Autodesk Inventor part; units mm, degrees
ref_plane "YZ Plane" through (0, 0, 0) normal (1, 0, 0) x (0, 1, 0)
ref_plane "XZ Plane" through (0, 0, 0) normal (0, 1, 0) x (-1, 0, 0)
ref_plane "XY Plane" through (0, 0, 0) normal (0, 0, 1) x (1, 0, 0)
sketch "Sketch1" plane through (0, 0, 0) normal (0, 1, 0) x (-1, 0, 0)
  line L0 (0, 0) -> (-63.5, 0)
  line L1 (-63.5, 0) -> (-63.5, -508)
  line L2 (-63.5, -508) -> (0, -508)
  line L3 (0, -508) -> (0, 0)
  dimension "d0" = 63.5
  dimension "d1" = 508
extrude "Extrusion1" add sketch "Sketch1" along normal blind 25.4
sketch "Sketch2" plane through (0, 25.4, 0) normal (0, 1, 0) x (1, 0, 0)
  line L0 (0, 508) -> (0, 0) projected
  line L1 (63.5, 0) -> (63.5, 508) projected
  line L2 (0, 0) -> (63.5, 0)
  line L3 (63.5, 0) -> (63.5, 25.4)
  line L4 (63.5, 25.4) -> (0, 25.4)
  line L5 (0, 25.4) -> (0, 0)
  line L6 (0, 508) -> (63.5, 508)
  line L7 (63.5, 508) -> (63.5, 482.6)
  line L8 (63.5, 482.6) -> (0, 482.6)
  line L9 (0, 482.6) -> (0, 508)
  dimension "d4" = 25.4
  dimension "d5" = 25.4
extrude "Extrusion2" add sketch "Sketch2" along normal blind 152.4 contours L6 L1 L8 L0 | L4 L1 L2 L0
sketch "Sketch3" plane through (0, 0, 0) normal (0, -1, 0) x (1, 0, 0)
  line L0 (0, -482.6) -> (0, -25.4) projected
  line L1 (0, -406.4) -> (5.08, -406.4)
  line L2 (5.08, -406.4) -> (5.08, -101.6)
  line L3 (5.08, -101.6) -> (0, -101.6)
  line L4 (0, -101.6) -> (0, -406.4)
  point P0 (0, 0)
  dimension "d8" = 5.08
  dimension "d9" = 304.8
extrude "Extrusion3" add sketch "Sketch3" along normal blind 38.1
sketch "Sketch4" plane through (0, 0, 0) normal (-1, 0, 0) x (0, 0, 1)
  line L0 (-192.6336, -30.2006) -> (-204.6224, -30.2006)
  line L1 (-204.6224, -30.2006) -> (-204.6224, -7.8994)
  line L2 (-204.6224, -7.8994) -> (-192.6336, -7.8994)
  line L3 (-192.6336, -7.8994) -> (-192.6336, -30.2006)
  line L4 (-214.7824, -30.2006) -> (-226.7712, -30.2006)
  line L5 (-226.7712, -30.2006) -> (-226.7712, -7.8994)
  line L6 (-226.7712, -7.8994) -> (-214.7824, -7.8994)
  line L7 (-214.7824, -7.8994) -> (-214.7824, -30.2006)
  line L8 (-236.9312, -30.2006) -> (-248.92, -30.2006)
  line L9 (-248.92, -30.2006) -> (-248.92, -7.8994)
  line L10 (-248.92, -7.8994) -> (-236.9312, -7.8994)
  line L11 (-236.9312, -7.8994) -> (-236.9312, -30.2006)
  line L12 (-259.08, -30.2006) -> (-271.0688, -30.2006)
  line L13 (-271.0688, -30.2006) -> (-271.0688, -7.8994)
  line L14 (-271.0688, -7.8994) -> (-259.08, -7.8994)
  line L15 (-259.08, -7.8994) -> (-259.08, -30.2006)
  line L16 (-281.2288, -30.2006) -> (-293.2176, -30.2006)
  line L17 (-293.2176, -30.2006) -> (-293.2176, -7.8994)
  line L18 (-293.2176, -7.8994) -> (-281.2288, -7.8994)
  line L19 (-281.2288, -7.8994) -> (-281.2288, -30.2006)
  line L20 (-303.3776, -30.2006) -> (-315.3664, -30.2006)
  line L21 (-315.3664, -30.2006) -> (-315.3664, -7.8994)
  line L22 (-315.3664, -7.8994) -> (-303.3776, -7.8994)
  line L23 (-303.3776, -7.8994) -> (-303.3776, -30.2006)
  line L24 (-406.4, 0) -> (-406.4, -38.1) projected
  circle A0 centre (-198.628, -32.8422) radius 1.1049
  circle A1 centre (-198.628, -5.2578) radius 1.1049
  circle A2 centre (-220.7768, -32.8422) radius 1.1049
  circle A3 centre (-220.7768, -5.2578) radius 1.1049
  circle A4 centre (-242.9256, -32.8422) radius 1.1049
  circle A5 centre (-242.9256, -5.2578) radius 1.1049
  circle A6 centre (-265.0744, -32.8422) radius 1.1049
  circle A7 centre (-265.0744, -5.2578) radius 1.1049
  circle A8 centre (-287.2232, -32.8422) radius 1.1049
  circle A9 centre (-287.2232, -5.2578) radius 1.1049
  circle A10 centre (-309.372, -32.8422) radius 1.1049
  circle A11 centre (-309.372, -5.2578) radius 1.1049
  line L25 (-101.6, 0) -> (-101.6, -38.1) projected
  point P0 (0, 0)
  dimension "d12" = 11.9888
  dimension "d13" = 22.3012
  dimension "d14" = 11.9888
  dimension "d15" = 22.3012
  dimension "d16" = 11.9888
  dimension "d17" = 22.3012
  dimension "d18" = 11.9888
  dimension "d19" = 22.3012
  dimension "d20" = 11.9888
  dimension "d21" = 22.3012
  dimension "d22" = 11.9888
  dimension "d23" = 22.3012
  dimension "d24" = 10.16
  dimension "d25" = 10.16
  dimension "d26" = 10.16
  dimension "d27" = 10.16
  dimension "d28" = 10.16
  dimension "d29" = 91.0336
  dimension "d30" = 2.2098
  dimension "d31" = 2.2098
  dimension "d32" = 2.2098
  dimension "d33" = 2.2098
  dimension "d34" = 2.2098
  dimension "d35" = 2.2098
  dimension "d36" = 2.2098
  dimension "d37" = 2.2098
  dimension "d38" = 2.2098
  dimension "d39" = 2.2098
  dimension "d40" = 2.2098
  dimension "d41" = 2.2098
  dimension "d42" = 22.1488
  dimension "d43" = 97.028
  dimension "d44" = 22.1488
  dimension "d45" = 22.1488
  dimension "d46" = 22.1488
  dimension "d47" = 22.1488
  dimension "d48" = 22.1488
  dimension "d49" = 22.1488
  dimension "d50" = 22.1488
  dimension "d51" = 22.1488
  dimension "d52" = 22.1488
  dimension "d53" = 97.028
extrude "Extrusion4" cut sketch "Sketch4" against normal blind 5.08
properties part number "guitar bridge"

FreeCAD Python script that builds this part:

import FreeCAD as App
import Part
import Sketcher
Q = App.Units.Quantity


def add_polygon(sketch, points):
    """Adds a closed chain of lines whose ends are joined by coincident constraints."""
    first, n = sketch.GeometryCount, len(points)
    for a, b in zip(points, points[1:] + points[:1]):
        sketch.addGeometry(Part.LineSegment(App.Vector(*a, 0), App.Vector(*b, 0)), False)
    for i in range(n):
        sketch.addConstraint(Sketcher.Constraint("Coincident", first + i, 2, first + (i + 1) % n, 1))

doc = App.newDocument("Part")
params = doc.addObject("Spreadsheet::Sheet", "Params")
for row, (alias, value) in enumerate([
    ("sketch1_height", "20 in"),
    ("sketch1_width", "2.5 in"),
    ("pad1_length", "1 in"),
    ("sketch2_height", "1 in"),
    ("sketch2_width", "2.5 in"),
    ("pad2_length", "6 in"),
    ("sketch3_height", "12 in"),
    ("sketch3_width", "0.2 in"),
    ("pad3_length", "1.5 in"),
    ("sketch4_diameter", "0.087 in"),
    ("sketch4_width", "0.878 in"),
    ("sketch4_height", "0.472 in"),
    ("pocket1_length", "0.2 in"),
], start=1):
    params.set(f"A{row}", alias)
    params.set(f"B{row}", "=" + value)
    params.setAlias(f"B{row}", alias)

body = doc.addObject("PartDesign::Body", "Body")

sketch1 = body.newObject("Sketcher::SketchObject", "Sketch")
sketch1.AttachmentSupport = (doc.getObject("XZ_Plane"), [""])
sketch1.MapMode = "FlatFace"
add_polygon(sketch1, [(0, -508), (0, 0), (63.5, 0), (63.5, -508)])
sketch1.addConstraint(Sketcher.Constraint("Vertical", 0))
sketch1.addConstraint(Sketcher.Constraint("Horizontal", 1))
sketch1.addConstraint(Sketcher.Constraint("Vertical", 2))
sketch1.addConstraint(Sketcher.Constraint("Horizontal", 3))
sketch1.addConstraint(Sketcher.Constraint("Coincident", 0, 2, -1, 1))
sketch1.addConstraint(Sketcher.Constraint("DistanceY", 0, 1, 0, 2, Q("20 in")))
sketch1.addConstraint(Sketcher.Constraint("DistanceX", 1, 1, 1, 2, Q("2.5 in")))
sketch1.setExpression("Constraints[9]", "Params.sketch1_height")
sketch1.setExpression("Constraints[10]", "Params.sketch1_width")
pad1 = body.newObject("PartDesign::Pad", "Pad")
pad1.Profile = sketch1
pad1.setExpression("Length", "Params.pad1_length")
pad1.Reversed = True

sketch2 = body.newObject("Sketcher::SketchObject", "Sketch001")
sketch2.AttachmentSupport = (doc.getObject("XZ_Plane"), [""])
sketch2.MapMode = "FlatFace"
sketch2.AttachmentOffset = App.Placement(App.Vector(0, 0, -1 * 25.4), App.Rotation())
add_polygon(sketch2, [(63.5, -508), (0, -508), (0, -482.6), (63.5, -482.6)])
add_polygon(sketch2, [(63.5, -25.4), (0, -25.4), (0, 0), (63.5, 0)])
sketch2.addConstraint(Sketcher.Constraint("Horizontal", 0))
sketch2.addConstraint(Sketcher.Constraint("Vertical", 1))
sketch2.addConstraint(Sketcher.Constraint("Horizontal", 2))
sketch2.addConstraint(Sketcher.Constraint("Vertical", 3))
sketch2.addConstraint(Sketcher.Constraint("Horizontal", 4))
sketch2.addConstraint(Sketcher.Constraint("Vertical", 5))
sketch2.addConstraint(Sketcher.Constraint("Horizontal", 6))
sketch2.addConstraint(Sketcher.Constraint("Vertical", 7))
sketch2.addConstraint(Sketcher.Constraint("Coincident", 5, 2, -1, 1))
sketch2.addConstraint(Sketcher.Constraint("PointOnObject", 0, 2, -2))
sketch2.addConstraint(Sketcher.Constraint("Vertical", 3, 2, 6, 2))
sketch2.addConstraint(Sketcher.Constraint("Equal", 3, 5))
sketch2.addConstraint(Sketcher.Constraint("DistanceY", 1, 1, 1, 2, Q("1 in")))
sketch2.addConstraint(Sketcher.Constraint("DistanceX", 0, 2, 0, 1, Q("2.5 in")))
sketch2.addConstraint(Sketcher.Constraint("DistanceY", 0, 2, -1, 1, Q("20 in")))
sketch2.setExpression("Constraints[20]", "Params.sketch2_height")
sketch2.setExpression("Constraints[21]", "Params.sketch2_width")
pad2 = body.newObject("PartDesign::Pad", "Pad001")
pad2.Profile = sketch2
pad2.setExpression("Length", "Params.pad2_length")
pad2.Reversed = True

sketch3 = body.newObject("Sketcher::SketchObject", "Sketch002")
sketch3.AttachmentSupport = (doc.getObject("XZ_Plane"), [""])
sketch3.MapMode = "FlatFace"
add_polygon(sketch3, [(0, -101.6), (0, -406.4), (5.08, -406.4), (5.08, -101.6)])
sketch3.addConstraint(Sketcher.Constraint("Vertical", 0))
sketch3.addConstraint(Sketcher.Constraint("Horizontal", 1))
sketch3.addConstraint(Sketcher.Constraint("Vertical", 2))
sketch3.addConstraint(Sketcher.Constraint("Horizontal", 3))
sketch3.addConstraint(Sketcher.Constraint("PointOnObject", 0, 2, -2))
sketch3.addConstraint(Sketcher.Constraint("DistanceY", 0, 2, 0, 1, Q("12 in")))
sketch3.addConstraint(Sketcher.Constraint("DistanceX", 1, 1, 1, 2, Q("0.2 in")))
sketch3.addConstraint(Sketcher.Constraint("DistanceY", 0, 2, -1, 1, Q("16 in")))
sketch3.setExpression("Constraints[9]", "Params.sketch3_height")
sketch3.setExpression("Constraints[10]", "Params.sketch3_width")
pad3 = body.newObject("PartDesign::Pad", "Pad002")
pad3.Profile = sketch3
pad3.setExpression("Length", "Params.pad3_length")

sketch4 = body.newObject("Sketcher::SketchObject", "Sketch003")
sketch4.AttachmentSupport = (doc.getObject("YZ_Plane"), [""])
sketch4.MapMode = "FlatFace"
add_polygon(sketch4, [(-30.2006, -204.6224), (-30.2006, -192.6336), (-7.8994, -192.6336), (-7.8994, -204.6224)])
add_polygon(sketch4, [(-30.2006, -226.7712), (-30.2006, -214.7824), (-7.8994, -214.7824), (-7.8994, -226.7712)])
add_polygon(sketch4, [(-30.2006, -248.92), (-30.2006, -236.9312), (-7.8994, -236.9312), (-7.8994, -248.92)])
add_polygon(sketch4, [(-30.2006, -271.0688), (-30.2006, -259.08), (-7.8994, -259.08), (-7.8994, -271.0688)])
add_polygon(sketch4, [(-30.2006, -293.2176), (-30.2006, -281.2288), (-7.8994, -281.2288), (-7.8994, -293.2176)])
add_polygon(sketch4, [(-30.2006, -315.3664), (-30.2006, -303.3776), (-7.8994, -303.3776), (-7.8994, -315.3664)])
sketch4.addGeometry(Part.Circle(App.Vector(-32.8422, -198.628, 0), App.Vector(0, 0, 1), 1.1049), False)
sketch4.addGeometry(Part.Circle(App.Vector(-5.2578, -198.628, 0), App.Vector(0, 0, 1), 1.1049), False)
sketch4.addGeometry(Part.Circle(App.Vector(-32.8422, -220.7768, 0), App.Vector(0, 0, 1), 1.1049), False)
sketch4.addGeometry(Part.Circle(App.Vector(-5.2578, -220.7768, 0), App.Vector(0, 0, 1), 1.1049), False)
sketch4.addGeometry(Part.Circle(App.Vector(-32.8422, -242.9256, 0), App.Vector(0, 0, 1), 1.1049), False)
sketch4.addGeometry(Part.Circle(App.Vector(-5.2578, -242.9256, 0), App.Vector(0, 0, 1), 1.1049), False)
sketch4.addGeometry(Part.Circle(App.Vector(-32.8422, -265.0744, 0), App.Vector(0, 0, 1), 1.1049), False)
sketch4.addGeometry(Part.Circle(App.Vector(-5.2578, -265.0744, 0), App.Vector(0, 0, 1), 1.1049), False)
sketch4.addGeometry(Part.Circle(App.Vector(-32.8422, -287.2232, 0), App.Vector(0, 0, 1), 1.1049), False)
sketch4.addGeometry(Part.Circle(App.Vector(-5.2578, -287.2232, 0), App.Vector(0, 0, 1), 1.1049), False)
sketch4.addGeometry(Part.Circle(App.Vector(-32.8422, -309.372, 0), App.Vector(0, 0, 1), 1.1049), False)
sketch4.addGeometry(Part.Circle(App.Vector(-5.2578, -309.372, 0), App.Vector(0, 0, 1), 1.1049), False)
sketch4.addConstraint(Sketcher.Constraint("Vertical", 0))
sketch4.addConstraint(Sketcher.Constraint("Horizontal", 1))
sketch4.addConstraint(Sketcher.Constraint("Vertical", 2))
sketch4.addConstraint(Sketcher.Constraint("Horizontal", 3))
sketch4.addConstraint(Sketcher.Constraint("Vertical", 4))
sketch4.addConstraint(Sketcher.Constraint("Horizontal", 5))
sketch4.addConstraint(Sketcher.Constraint("Vertical", 6))
sketch4.addConstraint(Sketcher.Constraint("Horizontal", 7))
sketch4.addConstraint(Sketcher.Constraint("Vertical", 8))
sketch4.addConstraint(Sketcher.Constraint("Horizontal", 9))
sketch4.addConstraint(Sketcher.Constraint("Vertical", 10))
sketch4.addConstraint(Sketcher.Constraint("Horizontal", 11))
sketch4.addConstraint(Sketcher.Constraint("Vertical", 12))
sketch4.addConstraint(Sketcher.Constraint("Horizontal", 13))
sketch4.addConstraint(Sketcher.Constraint("Vertical", 14))
sketch4.addConstraint(Sketcher.Constraint("Horizontal", 15))
sketch4.addConstraint(Sketcher.Constraint("Vertical", 16))
sketch4.addConstraint(Sketcher.Constraint("Horizontal", 17))
sketch4.addConstraint(Sketcher.Constraint("Vertical", 18))
sketch4.addConstraint(Sketcher.Constraint("Horizontal", 19))
sketch4.addConstraint(Sketcher.Constraint("Vertical", 20))
sketch4.addConstraint(Sketcher.Constraint("Horizontal", 21))
sketch4.addConstraint(Sketcher.Constraint("Vertical", 22))
sketch4.addConstraint(Sketcher.Constraint("Horizontal", 23))
sketch4.addConstraint(Sketcher.Constraint("Equal", 24, 25))
sketch4.addConstraint(Sketcher.Constraint("Equal", 25, 26))
sketch4.addConstraint(Sketcher.Constraint("Equal", 26, 27))
sketch4.addConstraint(Sketcher.Constraint("Equal", 27, 28))
sketch4.addConstraint(Sketcher.Constraint("Equal", 28, 29))
sketch4.addConstraint(Sketcher.Constraint("Equal", 29, 30))
sketch4.addConstraint(Sketcher.Constraint("Equal", 30, 31))
sketch4.addConstraint(Sketcher.Constraint("Equal", 31, 32))
sketch4.addConstraint(Sketcher.Constraint("Equal", 32, 33))
sketch4.addConstraint(Sketcher.Constraint("Equal", 33, 34))
sketch4.addConstraint(Sketcher.Constraint("Equal", 34, 35))
sketch4.addConstraint(Sketcher.Constraint("Horizontal", 24, 3, 25, 3))
sketch4.addConstraint(Sketcher.Constraint("Horizontal", 26, 3, 27, 3))
sketch4.addConstraint(Sketcher.Constraint("Horizontal", 28, 3, 29, 3))
sketch4.addConstraint(Sketcher.Constraint("Horizontal", 30, 3, 31, 3))
sketch4.addConstraint(Sketcher.Constraint("Horizontal", 32, 3, 33, 3))
sketch4.addConstraint(Sketcher.Constraint("Horizontal", 34, 3, 35, 3))
sketch4.addConstraint(Sketcher.Constraint("Vertical", 24, 3, 26, 3))
sketch4.addConstraint(Sketcher.Constraint("Vertical", 25, 3, 27, 3))
sketch4.addConstraint(Sketcher.Constraint("Vertical", 26, 3, 28, 3))
sketch4.addConstraint(Sketcher.Constraint("Vertical", 27, 3, 29, 3))
sketch4.addConstraint(Sketcher.Constraint("Vertical", 28, 3, 30, 3))
sketch4.addConstraint(Sketcher.Constraint("Vertical", 29, 3, 31, 3))
sketch4.addConstraint(Sketcher.Constraint("Vertical", 30, 3, 32, 3))
sketch4.addConstraint(Sketcher.Constraint("Vertical", 31, 3, 33, 3))
sketch4.addConstraint(Sketcher.Constraint("Vertical", 32, 3, 34, 3))
sketch4.addConstraint(Sketcher.Constraint("Vertical", 33, 3, 35, 3))
sketch4.addConstraint(Sketcher.Constraint("Vertical", 3, 2, 4, 2))
sketch4.addConstraint(Sketcher.Constraint("Vertical", 2, 2, 5, 2))
sketch4.addConstraint(Sketcher.Constraint("Vertical", 7, 2, 8, 2))
sketch4.addConstraint(Sketcher.Constraint("Vertical", 6, 2, 9, 2))
sketch4.addConstraint(Sketcher.Constraint("Vertical", 11, 2, 12, 2))
sketch4.addConstraint(Sketcher.Constraint("Vertical", 10, 2, 13, 2))
sketch4.addConstraint(Sketcher.Constraint("Vertical", 15, 2, 16, 2))
sketch4.addConstraint(Sketcher.Constraint("Vertical", 14, 2, 17, 2))
sketch4.addConstraint(Sketcher.Constraint("Vertical", 19, 2, 20, 2))
sketch4.addConstraint(Sketcher.Constraint("Vertical", 18, 2, 21, 2))
sketch4.addConstraint(Sketcher.Constraint("Equal", 2, 4))
sketch4.addConstraint(Sketcher.Constraint("Equal", 6, 8))
sketch4.addConstraint(Sketcher.Constraint("Equal", 10, 12))
sketch4.addConstraint(Sketcher.Constraint("Equal", 14, 16))
sketch4.addConstraint(Sketcher.Constraint("Equal", 18, 20))
sketch4.addConstraint(Sketcher.Constraint("Diameter", 24, Q("0.087 in")))
sketch4.addConstraint(Sketcher.Constraint("DistanceY", 4, 2, 3, 2, Q("0.4 in")))
sketch4.addConstraint(Sketcher.Constraint("DistanceY", 8, 2, 7, 2, Q("0.4 in")))
sketch4.addConstraint(Sketcher.Constraint("DistanceY", 12, 2, 11, 2, Q("0.4 in")))
sketch4.addConstraint(Sketcher.Constraint("DistanceY", 16, 2, 15, 2, Q("0.4 in")))
sketch4.addConstraint(Sketcher.Constraint("DistanceY", 20, 2, 19, 2, Q("0.4 in")))
sketch4.addConstraint(Sketcher.Constraint("DistanceX", 1, 1, 1, 2, Q("0.878 in")))
sketch4.addConstraint(Sketcher.Constraint("DistanceY", 0, 1, 0, 2, Q("0.472 in")))
sketch4.addConstraint(Sketcher.Constraint("DistanceY", 26, 3, 24, 3, Q("0.872 in")))
sketch4.addConstraint(Sketcher.Constraint("DistanceY", 28, 3, 26, 3, Q("0.872 in")))
sketch4.addConstraint(Sketcher.Constraint("DistanceY", 30, 3, 28, 3, Q("0.872 in")))
sketch4.addConstraint(Sketcher.Constraint("DistanceY", 32, 3, 30, 3, Q("0.872 in")))
sketch4.addConstraint(Sketcher.Constraint("DistanceY", 34, 3, 32, 3, Q("0.872 in")))
sketch4.addConstraint(Sketcher.Constraint("DistanceY", 10, 2, -1, 1, Q("9.8 in")))
sketch4.addConstraint(Sketcher.Constraint("DistanceY", 24, 3, -1, 1, Q("7.82 in")))
sketch4.addConstraint(Sketcher.Constraint("DistanceX", 24, 3, -1, 1, Q("1.293 in")))
sketch4.addConstraint(Sketcher.Constraint("DistanceX", 25, 3, -1, 1, Q("0.207 in")))
sketch4.addConstraint(Sketcher.Constraint("DistanceX", 0, 2, -1, 1, Q("1.189 in")))
sketch4.setExpression("Constraints[90]", "Params.sketch4_diameter")
sketch4.setExpression("Constraints[96]", "Params.sketch4_width")
sketch4.setExpression("Constraints[97]", "Params.sketch4_height")
pocket1 = body.newObject("PartDesign::Pocket", "Pocket")
pocket1.Profile = sketch4
pocket1.setExpression("Length", "Params.pocket1_length")
pocket1.Reversed = True

doc.recompute()
